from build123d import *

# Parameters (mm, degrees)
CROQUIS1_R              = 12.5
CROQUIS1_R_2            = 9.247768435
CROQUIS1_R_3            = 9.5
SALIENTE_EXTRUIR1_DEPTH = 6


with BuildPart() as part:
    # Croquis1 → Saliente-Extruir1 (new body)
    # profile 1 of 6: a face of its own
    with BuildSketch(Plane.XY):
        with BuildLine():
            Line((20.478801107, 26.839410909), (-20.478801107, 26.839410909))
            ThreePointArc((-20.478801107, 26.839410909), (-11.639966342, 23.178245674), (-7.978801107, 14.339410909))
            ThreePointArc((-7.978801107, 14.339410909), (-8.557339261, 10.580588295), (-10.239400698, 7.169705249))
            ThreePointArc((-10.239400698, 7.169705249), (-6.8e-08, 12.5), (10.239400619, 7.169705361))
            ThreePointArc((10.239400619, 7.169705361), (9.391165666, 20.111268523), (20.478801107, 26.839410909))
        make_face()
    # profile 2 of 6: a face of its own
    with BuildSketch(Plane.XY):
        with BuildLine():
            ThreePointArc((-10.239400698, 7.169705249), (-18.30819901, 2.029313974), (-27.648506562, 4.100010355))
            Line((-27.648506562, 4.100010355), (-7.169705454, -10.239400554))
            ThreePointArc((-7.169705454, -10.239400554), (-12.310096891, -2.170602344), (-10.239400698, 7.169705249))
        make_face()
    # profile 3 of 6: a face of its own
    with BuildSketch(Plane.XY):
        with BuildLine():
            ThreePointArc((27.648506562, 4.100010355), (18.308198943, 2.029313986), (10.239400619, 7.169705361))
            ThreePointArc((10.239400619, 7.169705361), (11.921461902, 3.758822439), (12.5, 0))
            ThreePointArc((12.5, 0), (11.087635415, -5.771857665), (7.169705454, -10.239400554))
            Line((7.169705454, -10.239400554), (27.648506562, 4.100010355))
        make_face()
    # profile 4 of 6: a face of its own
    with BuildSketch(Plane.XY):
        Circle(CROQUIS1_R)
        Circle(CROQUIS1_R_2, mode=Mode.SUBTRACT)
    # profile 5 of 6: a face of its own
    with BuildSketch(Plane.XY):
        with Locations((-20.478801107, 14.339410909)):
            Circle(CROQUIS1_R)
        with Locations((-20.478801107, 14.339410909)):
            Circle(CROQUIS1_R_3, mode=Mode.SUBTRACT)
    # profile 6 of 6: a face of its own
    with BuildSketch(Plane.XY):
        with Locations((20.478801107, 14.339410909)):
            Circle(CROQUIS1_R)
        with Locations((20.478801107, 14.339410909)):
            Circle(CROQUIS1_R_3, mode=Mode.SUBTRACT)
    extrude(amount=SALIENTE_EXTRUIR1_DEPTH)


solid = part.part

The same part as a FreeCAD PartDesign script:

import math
import FreeCAD as App
import Part
import Sketcher
Q = App.Units.Quantity

doc = App.newDocument("Part")
body = doc.addObject("PartDesign::Body", "Body")

# Sketch on XY plane
sketch1 = body.newObject("Sketcher::SketchObject", "Sketch")
sketch1.AttachmentSupport = (doc.getObject("XY_Plane"), [""])
sketch1.MapMode = "FlatFace"
sketch1.addGeometry([
    Part.LineSegment(App.Vector(20, 27, 0), App.Vector(-20, 27, 0)),  # 0
    Part.ArcOfCircle(Part.Circle(App.Vector(-20, 14, 0), App.Vector(0, 0, 1), 12), math.radians(90), math.radians(235)),  # 1
    Part.LineSegment(App.Vector(-28, 4, 0), App.Vector(-7, -10, 0)),  # 2
    Part.ArcOfCircle(Part.Circle(App.Vector(0, 0, 0), App.Vector(0, 0, 1), 12), math.radians(-125), math.radians(-55)),  # 3
    Part.LineSegment(App.Vector(7, -10, 0), App.Vector(28, 4, 0)),  # 4
    Part.ArcOfCircle(Part.Circle(App.Vector(20, 14, 0), App.Vector(0, 0, 1), 12), math.radians(-55), math.radians(90)),  # 5
    Part.Circle(App.Vector(-20, 14, 0), App.Vector(0, 0, 1), 10),  # 6
    Part.Circle(App.Vector(0, 0, 0), App.Vector(0, 0, 1), 9),  # 7
    Part.Circle(App.Vector(20, 14, 0), App.Vector(0, 0, 1), 10),  # 8
], False)
sketch1.addConstraint([
    Sketcher.Constraint("Tangent", 0, 2, 1, 1),
    Sketcher.Constraint("Tangent", 1, 2, 2, 1),
    Sketcher.Constraint("Tangent", 2, 2, 3, 1),
    Sketcher.Constraint("Tangent", 3, 2, 4, 1),
    Sketcher.Constraint("Tangent", 4, 2, 5, 1),
    Sketcher.Constraint("Tangent", 5, 2, 0, 1),
    Sketcher.Constraint("Horizontal", 0),
    Sketcher.Constraint("Coincident", 3, 3, -1, 1),
    Sketcher.Constraint("Coincident", 7, 3, -1, 1),
    Sketcher.Constraint("Coincident", 6, 3, 1, 3),
    Sketcher.Constraint("Coincident", 8, 3, 5, 3),
    Sketcher.Constraint("Equal", 1, 3),
    Sketcher.Constraint("Equal", 3, 5),
    Sketcher.Constraint("Equal", 6, 8),
    Sketcher.Constraint("Horizontal", 2, 2, 3, 2),
    Sketcher.Constraint("Diameter", 6, Q("19 mm")),
    Sketcher.Constraint("Radius", 1, Q("12.5 mm")),
    Sketcher.Constraint("Angle", 2, Q("-35 deg")),
    Sketcher.Constraint("Distance", 2, Q("25 mm")),
    Sketcher.Constraint("Diameter", 7, Q("18.495537 mm")),
])
pad1 = body.newObject("PartDesign::Pad", "Pad")
pad1.Profile = sketch1
pad1.Length = 6

doc.recompute()
